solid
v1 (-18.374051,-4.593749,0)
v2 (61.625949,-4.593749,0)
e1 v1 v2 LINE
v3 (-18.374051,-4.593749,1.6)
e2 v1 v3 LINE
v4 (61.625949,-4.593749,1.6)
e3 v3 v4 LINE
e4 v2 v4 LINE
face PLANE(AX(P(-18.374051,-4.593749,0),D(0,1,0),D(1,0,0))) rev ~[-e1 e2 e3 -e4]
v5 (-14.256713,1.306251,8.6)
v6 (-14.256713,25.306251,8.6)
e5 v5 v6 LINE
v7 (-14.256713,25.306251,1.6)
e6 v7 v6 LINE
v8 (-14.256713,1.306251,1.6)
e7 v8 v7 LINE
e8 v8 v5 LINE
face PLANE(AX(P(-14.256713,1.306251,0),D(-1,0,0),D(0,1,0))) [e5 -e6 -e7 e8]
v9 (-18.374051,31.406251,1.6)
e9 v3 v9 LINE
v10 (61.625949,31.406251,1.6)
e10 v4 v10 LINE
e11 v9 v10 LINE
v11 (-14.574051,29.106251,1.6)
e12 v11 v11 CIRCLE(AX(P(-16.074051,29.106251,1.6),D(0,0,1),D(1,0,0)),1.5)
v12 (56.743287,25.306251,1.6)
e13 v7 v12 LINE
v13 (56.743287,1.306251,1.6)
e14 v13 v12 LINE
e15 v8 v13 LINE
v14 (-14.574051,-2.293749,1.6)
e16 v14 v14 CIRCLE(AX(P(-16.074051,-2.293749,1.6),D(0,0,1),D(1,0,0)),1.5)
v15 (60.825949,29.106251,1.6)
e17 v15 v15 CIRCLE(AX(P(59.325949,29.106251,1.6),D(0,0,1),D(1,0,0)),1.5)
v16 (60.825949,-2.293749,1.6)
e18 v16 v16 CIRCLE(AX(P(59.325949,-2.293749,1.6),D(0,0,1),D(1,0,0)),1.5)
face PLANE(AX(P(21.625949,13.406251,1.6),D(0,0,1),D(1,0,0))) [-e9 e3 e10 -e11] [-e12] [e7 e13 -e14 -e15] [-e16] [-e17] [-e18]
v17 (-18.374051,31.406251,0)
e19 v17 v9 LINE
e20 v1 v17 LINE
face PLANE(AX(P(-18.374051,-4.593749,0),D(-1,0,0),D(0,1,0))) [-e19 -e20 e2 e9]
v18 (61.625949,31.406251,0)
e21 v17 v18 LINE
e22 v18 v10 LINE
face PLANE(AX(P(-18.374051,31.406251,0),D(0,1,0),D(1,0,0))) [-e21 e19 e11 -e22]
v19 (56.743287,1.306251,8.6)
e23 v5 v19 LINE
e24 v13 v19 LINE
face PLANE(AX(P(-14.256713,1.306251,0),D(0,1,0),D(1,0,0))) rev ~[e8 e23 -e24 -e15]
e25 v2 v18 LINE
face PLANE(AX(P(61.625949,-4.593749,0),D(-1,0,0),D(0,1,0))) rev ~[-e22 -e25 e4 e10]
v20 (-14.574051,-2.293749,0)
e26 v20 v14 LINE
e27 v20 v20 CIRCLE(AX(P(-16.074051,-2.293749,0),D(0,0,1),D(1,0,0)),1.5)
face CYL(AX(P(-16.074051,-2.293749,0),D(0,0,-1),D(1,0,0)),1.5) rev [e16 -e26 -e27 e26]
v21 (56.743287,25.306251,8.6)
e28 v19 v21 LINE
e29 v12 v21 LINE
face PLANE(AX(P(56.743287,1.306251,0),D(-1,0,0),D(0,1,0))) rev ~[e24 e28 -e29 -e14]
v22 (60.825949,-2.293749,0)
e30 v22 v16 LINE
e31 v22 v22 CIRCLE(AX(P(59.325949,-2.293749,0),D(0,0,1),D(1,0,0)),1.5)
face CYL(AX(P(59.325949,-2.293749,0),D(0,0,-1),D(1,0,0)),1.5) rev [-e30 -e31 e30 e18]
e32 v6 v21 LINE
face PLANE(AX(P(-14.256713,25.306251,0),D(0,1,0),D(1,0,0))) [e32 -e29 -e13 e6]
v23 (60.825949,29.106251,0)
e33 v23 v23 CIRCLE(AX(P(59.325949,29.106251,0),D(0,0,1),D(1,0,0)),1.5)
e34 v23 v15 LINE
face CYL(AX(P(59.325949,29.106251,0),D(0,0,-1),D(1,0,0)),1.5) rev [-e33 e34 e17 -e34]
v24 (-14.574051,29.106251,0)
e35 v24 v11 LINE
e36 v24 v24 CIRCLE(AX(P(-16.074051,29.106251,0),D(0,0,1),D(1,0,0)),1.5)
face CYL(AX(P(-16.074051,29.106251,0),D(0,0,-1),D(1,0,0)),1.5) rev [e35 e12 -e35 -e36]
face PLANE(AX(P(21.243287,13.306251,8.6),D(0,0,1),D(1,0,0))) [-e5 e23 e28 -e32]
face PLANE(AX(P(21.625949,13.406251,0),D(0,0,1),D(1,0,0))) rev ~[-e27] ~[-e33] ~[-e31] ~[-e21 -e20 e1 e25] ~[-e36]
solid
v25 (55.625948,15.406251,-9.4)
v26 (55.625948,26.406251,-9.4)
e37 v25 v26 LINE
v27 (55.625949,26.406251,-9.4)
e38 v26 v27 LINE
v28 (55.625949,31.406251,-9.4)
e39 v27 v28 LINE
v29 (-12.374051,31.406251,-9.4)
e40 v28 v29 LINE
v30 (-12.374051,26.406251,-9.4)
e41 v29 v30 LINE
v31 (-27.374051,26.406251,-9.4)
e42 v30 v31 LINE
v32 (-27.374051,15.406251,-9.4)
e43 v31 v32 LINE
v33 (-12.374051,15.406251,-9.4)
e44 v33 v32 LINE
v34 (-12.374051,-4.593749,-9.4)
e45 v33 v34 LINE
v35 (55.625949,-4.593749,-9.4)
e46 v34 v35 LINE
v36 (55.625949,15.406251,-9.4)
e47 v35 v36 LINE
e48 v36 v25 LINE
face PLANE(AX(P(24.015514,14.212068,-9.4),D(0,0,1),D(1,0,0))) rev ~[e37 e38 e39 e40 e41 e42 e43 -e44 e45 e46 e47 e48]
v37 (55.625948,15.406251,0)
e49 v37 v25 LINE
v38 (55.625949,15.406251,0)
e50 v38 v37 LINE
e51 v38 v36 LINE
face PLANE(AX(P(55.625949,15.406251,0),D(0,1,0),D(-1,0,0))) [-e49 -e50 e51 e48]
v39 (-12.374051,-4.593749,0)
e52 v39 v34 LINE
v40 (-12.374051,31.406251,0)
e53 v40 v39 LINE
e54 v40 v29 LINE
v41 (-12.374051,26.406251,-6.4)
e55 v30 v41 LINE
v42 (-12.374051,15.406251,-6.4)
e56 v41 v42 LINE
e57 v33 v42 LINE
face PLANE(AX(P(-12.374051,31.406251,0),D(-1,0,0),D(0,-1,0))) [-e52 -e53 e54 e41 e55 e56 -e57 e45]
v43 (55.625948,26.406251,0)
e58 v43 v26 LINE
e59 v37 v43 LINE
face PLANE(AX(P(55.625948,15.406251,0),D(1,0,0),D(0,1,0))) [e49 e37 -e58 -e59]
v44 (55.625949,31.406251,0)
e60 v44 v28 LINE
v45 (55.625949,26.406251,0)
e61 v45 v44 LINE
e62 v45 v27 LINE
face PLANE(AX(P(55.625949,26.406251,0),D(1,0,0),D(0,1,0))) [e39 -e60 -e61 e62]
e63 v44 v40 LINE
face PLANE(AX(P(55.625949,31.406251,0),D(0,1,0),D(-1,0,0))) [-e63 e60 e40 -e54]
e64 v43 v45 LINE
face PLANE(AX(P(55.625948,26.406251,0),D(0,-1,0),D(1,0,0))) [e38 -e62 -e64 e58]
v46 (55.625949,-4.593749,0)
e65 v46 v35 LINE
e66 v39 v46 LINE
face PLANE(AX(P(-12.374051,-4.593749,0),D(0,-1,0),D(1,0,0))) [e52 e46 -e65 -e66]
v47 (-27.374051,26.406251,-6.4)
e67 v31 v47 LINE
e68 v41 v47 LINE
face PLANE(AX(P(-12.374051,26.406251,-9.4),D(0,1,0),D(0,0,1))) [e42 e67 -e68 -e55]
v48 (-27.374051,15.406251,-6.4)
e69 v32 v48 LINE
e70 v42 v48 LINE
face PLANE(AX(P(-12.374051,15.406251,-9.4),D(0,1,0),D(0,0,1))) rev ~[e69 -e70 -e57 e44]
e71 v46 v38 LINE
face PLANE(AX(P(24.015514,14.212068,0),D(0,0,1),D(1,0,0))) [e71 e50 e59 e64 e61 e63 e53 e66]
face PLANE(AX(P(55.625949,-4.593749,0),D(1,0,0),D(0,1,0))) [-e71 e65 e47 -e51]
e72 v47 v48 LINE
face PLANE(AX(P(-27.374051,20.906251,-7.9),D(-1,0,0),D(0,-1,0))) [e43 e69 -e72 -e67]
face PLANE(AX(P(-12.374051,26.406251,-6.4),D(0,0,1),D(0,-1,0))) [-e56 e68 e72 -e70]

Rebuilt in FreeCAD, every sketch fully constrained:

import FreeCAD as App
import Part
import Sketcher

doc = App.newDocument("Part")
body = doc.addObject("PartDesign::Body", "Body")

# Sketch on XY plane
sketch1 = doc.addObject("Sketcher::SketchObject", "Sketch")
body.addObject(sketch1)
sketch1.AttachmentSupport = (doc.XY_Plane, [""])
sketch1.MapMode = "FlatFace"
sketch1.addGeometry([
    Part.LineSegment(App.Vector(-14, 25, 0), App.Vector(-14, 1, 0)),
    Part.LineSegment(App.Vector(-14, 1, 0), App.Vector(57, 1, 0)),
    Part.LineSegment(App.Vector(57, 1, 0), App.Vector(57, 25, 0)),
    Part.LineSegment(App.Vector(57, 25, 0), App.Vector(-14, 25, 0)),
], False)
sketch1.addConstraint([
    Sketcher.Constraint("Coincident", 0, 2, 1, 1),
    Sketcher.Constraint("Coincident", 1, 2, 2, 1),
    Sketcher.Constraint("Coincident", 2, 2, 3, 1),
    Sketcher.Constraint("Coincident", 3, 2, 0, 1),
    Sketcher.Constraint("Vertical", 0),
    Sketcher.Constraint("Horizontal", 1),
    Sketcher.Constraint("Vertical", 2),
    Sketcher.Constraint("Horizontal", 3),
    Sketcher.Constraint("DistanceX", 1, 1, 1, 2, 71.0),
    Sketcher.Constraint("DistanceY", 0, 2, 0, 1, 24.0),
    Sketcher.Constraint("DistanceY", -1, 1, 0, 2, 1.306251),
    Sketcher.Constraint("DistanceX", 0, 2, -1, 1, 14.256713),
])
pad1 = doc.addObject("PartDesign::Pad", "Pad")
body.addObject(pad1)
pad1.Profile = sketch1
pad1.Length = 8.6

# Sketch on XY plane
sketch2 = doc.addObject("Sketcher::SketchObject", "Sketch001")
body.addObject(sketch2)
sketch2.AttachmentSupport = (doc.XY_Plane, [""])
sketch2.MapMode = "FlatFace"
sketch2.addGeometry([
    Part.LineSegment(App.Vector(-18.4, 31.4, 0), App.Vector(-18.4, -4.6, 0)),  # 0
    Part.LineSegment(App.Vector(-18.4, -4.6, 0), App.Vector(61.6, -4.6, 0)),  # 1
    Part.LineSegment(App.Vector(61.6, -4.6, 0), App.Vector(61.6, 31.4, 0)),  # 2
    Part.LineSegment(App.Vector(61.6, 31.4, 0), App.Vector(-18.4, 31.4, 0)),  # 3
    Part.Circle(App.Vector(-16.1, -2.3, 0), App.Vector(0, 0, 1), 1.5),  # 4
    Part.LineSegment(App.Vector(56.7, 1.3, 0), App.Vector(-14.3, 1.3, 0)),  # 5
    Part.LineSegment(App.Vector(-14.3, 1.3, 0), App.Vector(-14.3, 25.3, 0)),  # 6
    Part.LineSegment(App.Vector(-14.3, 25.3, 0), App.Vector(56.7, 25.3, 0)),  # 7
    Part.LineSegment(App.Vector(56.7, 25.3, 0), App.Vector(56.7, 1.3, 0)),  # 8
    Part.Circle(App.Vector(59.3, -2.3, 0), App.Vector(0, 0, 1), 1.5),  # 9
    Part.Circle(App.Vector(-16.1, 29.1, 0), App.Vector(0, 0, 1), 1.5),  # 10
    Part.Circle(App.Vector(59.3, 29.1, 0), App.Vector(0, 0, 1), 1.5),  # 11
], False)
sketch2.addConstraint([
    Sketcher.Constraint("Coincident", 0, 2, 1, 1),
    Sketcher.Constraint("Coincident", 1, 2, 2, 1),
    Sketcher.Constraint("Coincident", 2, 2, 3, 1),
    Sketcher.Constraint("Coincident", 3, 2, 0, 1),
    Sketcher.Constraint("Coincident", 5, 2, 6, 1),
    Sketcher.Constraint("Coincident", 6, 2, 7, 1),
    Sketcher.Constraint("Coincident", 7, 2, 8, 1),
    Sketcher.Constraint("Coincident", 8, 2, 5, 1),
    Sketcher.Constraint("Vertical", 0),
    Sketcher.Constraint("Horizontal", 1),
    Sketcher.Constraint("Vertical", 2),
    Sketcher.Constraint("Horizontal", 3),
    Sketcher.Constraint("Horizontal", 5),
    Sketcher.Constraint("Vertical", 6),
    Sketcher.Constraint("Horizontal", 7),
    Sketcher.Constraint("Vertical", 8),
    Sketcher.Constraint("Equal", 4, 9),
    Sketcher.Constraint("Equal", 9, 10),
    Sketcher.Constraint("Equal", 10, 11),
    Sketcher.Constraint("Horizontal", 4, 3, 9, 3),
    Sketcher.Constraint("Horizontal", 10, 3, 11, 3),
    Sketcher.Constraint("Vertical", 4, 3, 10, 3),
    Sketcher.Constraint("Vertical", 9, 3, 11, 3),
    Sketcher.Constraint("Diameter", 4, 3.0),
    Sketcher.Constraint("DistanceX", 1, 1, 1, 2, 80.0),
    Sketcher.Constraint("DistanceX", 5, 2, 5, 1, 71.0),
    Sketcher.Constraint("DistanceY", 0, 2, 0, 1, 36.0),
    Sketcher.Constraint("DistanceY", 6, 1, 6, 2, 24.0),
    Sketcher.Constraint("DistanceX", 4, 3, 9, 3, 75.4),
    Sketcher.Constraint("DistanceY", 4, 3, 10, 3, 31.4),
    Sketcher.Constraint("DistanceX", 0, 2, 4, 3, 2.3),
    Sketcher.Constraint("DistanceY", 0, 2, 4, 3, 2.3),
    Sketcher.Constraint("DistanceY", 4, 3, 5, 2, 3.6),
    Sketcher.Constraint("DistanceX", 4, 3, -1, 1, 16.074051),
    Sketcher.Constraint("DistanceY", 4, 3, -1, 1, 2.293749),
    Sketcher.Constraint("DistanceX", 4, 3, 5, 2, 1.817338),
])
pad2 = doc.addObject("PartDesign::Pad", "Pad001")
body.addObject(pad2)
pad2.Profile = sketch2
pad2.Length = 1.6
body2 = doc.addObject("PartDesign::Body", "Body001")

# Sketch on XY plane
sketch3 = doc.addObject("Sketcher::SketchObject", "Sketch002")
body2.addObject(sketch3)
sketch3.AttachmentSupport = (doc.getObject("XY_Plane001"), [""])
sketch3.MapMode = "FlatFace"
sketch3.addGeometry([
    Part.LineSegment(App.Vector(55.625948, 15.406251, 0), App.Vector(55.625949, 15.406251, 0)),  # 0
    Part.LineSegment(App.Vector(55.625948, 15.406251, 0), App.Vector(55.625948, 26.406251, 0)),  # 1
    Part.LineSegment(App.Vector(55.625949, 26.406251, 0), App.Vector(55.625948, 26.406251, 0)),  # 2
    Part.LineSegment(App.Vector(55.625949, 26.406251, 0), App.Vector(55.625949, 31.406251, 0)),  # 3
    Part.LineSegment(App.Vector(55.625949, 31.406251, 0), App.Vector(-12.374051, 31.406251, 0)),  # 4
    Part.LineSegment(App.Vector(-12.374051, 31.406251, 0), App.Vector(-12.374051, -4.593749, 0)),  # 5
    Part.LineSegment(App.Vector(-12.374051, -4.593749, 0), App.Vector(55.625949, -4.593749, 0)),  # 6
    Part.LineSegment(App.Vector(55.625949, -4.593749, 0), App.Vector(55.625949, 15.406251, 0)),  # 7
], False)
sketch3.addConstraint([
    Sketcher.Constraint("Coincident", 0, 1, 1, 1),
    Sketcher.Constraint("Coincident", 1, 2, 2, 1),
    Sketcher.Constraint("Coincident", 2, 2, 3, 1),
    Sketcher.Constraint("Coincident", 3, 2, 4, 1),
    Sketcher.Constraint("Coincident", 4, 2, 5, 1),
    Sketcher.Constraint("Coincident", 5, 2, 6, 1),
    Sketcher.Constraint("Coincident", 6, 2, 7, 1),
    Sketcher.Constraint("Coincident", 7, 2, 0, 2),
    Sketcher.Constraint("Horizontal", 0),
    Sketcher.Constraint("Vertical", 1),
    Sketcher.Constraint("Horizontal", 2),
    Sketcher.Constraint("Vertical", 3),
    Sketcher.Constraint("Horizontal", 4),
    Sketcher.Constraint("Vertical", 5),
    Sketcher.Constraint("Horizontal", 6),
    Sketcher.Constraint("Vertical", 7),
    Sketcher.Constraint("DistanceX", 4, 2, 4, 1, 68.0),
    Sketcher.Constraint("DistanceX", 6, 1, 6, 2, 68.0),
    Sketcher.Constraint("DistanceY", 1, 1, 1, 2, 11.0),
    Sketcher.Constraint("DistanceY", 3, 1, 3, 2, 5.0),
    Sketcher.Constraint("DistanceY", 5, 2, 5, 1, 36.0),
    Sketcher.Constraint("DistanceX", 4, 2, 1, 2, 68.0),
    Sketcher.Constraint("DistanceX", -1, 1, 0, 1, 55.625948),
    Sketcher.Constraint("DistanceY", -1, 1, 0, 1, 15.406251),
])
pad3 = doc.addObject("PartDesign::Pad", "Pad002")
body2.addObject(pad3)
pad3.Profile = sketch3
pad3.Length = 9.4
pad3.Reversed = True

# Sketch on YZ plane
sketch4 = doc.addObject("Sketcher::SketchObject", "Sketch003")
body2.addObject(sketch4)
sketch4.AttachmentSupport = (doc.getObject("YZ_Plane001"), [""])
sketch4.MapMode = "FlatFace"
sketch4.AttachmentOffset = App.Placement(App.Vector(0, 0, -12.374051), App.Rotation())
sketch4.addGeometry([
    Part.LineSegment(App.Vector(26.4, -6.4, 0), App.Vector(26.4, -9.4, 0)),
    Part.LineSegment(App.Vector(26.4, -9.4, 0), App.Vector(15.4, -9.4, 0)),
    Part.LineSegment(App.Vector(15.4, -9.4, 0), App.Vector(15.4, -6.4, 0)),
    Part.LineSegment(App.Vector(15.4, -6.4, 0), App.Vector(26.4, -6.4, 0)),
], False)
sketch4.addConstraint([
    Sketcher.Constraint("Coincident", 0, 2, 1, 1),
    Sketcher.Constraint("Coincident", 1, 2, 2, 1),
    Sketcher.Constraint("Coincident", 2, 2, 3, 1),
    Sketcher.Constraint("Coincident", 3, 2, 0, 1),
    Sketcher.Constraint("Vertical", 0),
    Sketcher.Constraint("Horizontal", 1),
    Sketcher.Constraint("Vertical", 2),
    Sketcher.Constraint("Horizontal", 3),
    Sketcher.Constraint("DistanceX", 1, 2, 1, 1, 11.0),
    Sketcher.Constraint("DistanceY", 0, 2, 0, 1, 3.0),
    Sketcher.Constraint("DistanceY", 0, 2, -1, 1, 9.4),
    Sketcher.Constraint("DistanceX", -1, 1, 0, 2, 26.406251),
])
pad4 = doc.addObject("PartDesign::Pad", "Pad003")
body2.addObject(pad4)
pad4.Profile = sketch4
pad4.Length = 15
pad4.Reversed = True

doc.recompute()
